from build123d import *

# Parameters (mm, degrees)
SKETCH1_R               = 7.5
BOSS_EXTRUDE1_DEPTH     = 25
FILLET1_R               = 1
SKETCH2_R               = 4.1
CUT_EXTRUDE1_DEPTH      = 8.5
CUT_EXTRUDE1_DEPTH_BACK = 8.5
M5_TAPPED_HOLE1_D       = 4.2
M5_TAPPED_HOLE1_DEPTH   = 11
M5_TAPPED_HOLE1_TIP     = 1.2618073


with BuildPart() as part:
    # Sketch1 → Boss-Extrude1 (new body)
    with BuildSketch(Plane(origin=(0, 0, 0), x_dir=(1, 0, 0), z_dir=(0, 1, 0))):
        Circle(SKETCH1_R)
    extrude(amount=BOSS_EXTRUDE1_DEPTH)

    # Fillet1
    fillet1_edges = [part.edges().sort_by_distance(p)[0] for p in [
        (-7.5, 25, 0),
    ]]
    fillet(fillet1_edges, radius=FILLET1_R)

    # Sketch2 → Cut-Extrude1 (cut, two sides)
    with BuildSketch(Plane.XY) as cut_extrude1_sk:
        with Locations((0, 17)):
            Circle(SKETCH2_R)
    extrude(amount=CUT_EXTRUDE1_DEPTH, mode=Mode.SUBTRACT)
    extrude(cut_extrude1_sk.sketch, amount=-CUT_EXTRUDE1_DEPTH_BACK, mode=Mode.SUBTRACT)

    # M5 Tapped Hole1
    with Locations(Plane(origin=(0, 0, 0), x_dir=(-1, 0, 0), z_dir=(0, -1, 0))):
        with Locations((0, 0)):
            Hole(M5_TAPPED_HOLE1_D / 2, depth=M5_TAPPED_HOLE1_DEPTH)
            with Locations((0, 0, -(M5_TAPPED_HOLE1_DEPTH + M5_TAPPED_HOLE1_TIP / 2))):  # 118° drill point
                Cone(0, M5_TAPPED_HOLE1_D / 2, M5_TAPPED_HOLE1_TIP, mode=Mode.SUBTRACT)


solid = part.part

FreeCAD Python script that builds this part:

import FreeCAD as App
import Part
import Sketcher
from FreeCAD import Vector


def edges_at(feature, points):
    """Names of the edges that pass closest to the given points."""
    edges = feature.Shape.Edges
    near = lambda p: min(range(len(edges)), key=lambda i: edges[i].distToShape(Part.Vertex(*p))[0])
    return sorted({f"Edge{near(p) + 1}" for p in points})

doc = App.newDocument("Part")
body = doc.addObject("PartDesign::Body", "Body")

sketch1 = body.newObject("Sketcher::SketchObject", "Sketch")
sketch1.AttachmentSupport = (doc.getObject("XZ_Plane"), [""])
sketch1.MapMode = "FlatFace"
sketch1.addGeometry(Part.Circle(Vector(0, 0, 0), Vector(0, 0, 1), 7.5), False)
sketch1.addConstraint(Sketcher.Constraint("Coincident", 0, 3, -1, 1))
sketch1.addConstraint(Sketcher.Constraint("Diameter", 0, 15.0))
pad1 = body.newObject("PartDesign::Pad", "Pad")
pad1.Profile = sketch1
pad1.Length = 25
pad1.Reversed = True
doc.recompute()

fillet = body.newObject("PartDesign::Fillet", "Fillet")
fillet.Base = (pad1, edges_at(pad1, [(-7.5, 25, 0)]))
fillet.Radius = 1

sketch2 = body.newObject("Sketcher::SketchObject", "Sketch001")
sketch2.AttachmentSupport = (doc.getObject("XY_Plane"), [""])
sketch2.MapMode = "FlatFace"
sketch2.addGeometry(Part.Circle(Vector(0, 17, 0), Vector(0, 0, 1), 4.1), False)
sketch2.addConstraint(Sketcher.Constraint("PointOnObject", 0, 3, -2))
sketch2.addConstraint(Sketcher.Constraint("Diameter", 0, 8.2))
sketch2.addConstraint(Sketcher.Constraint("DistanceY", -1, 1, 0, 3, 17.0))
pocket1 = body.newObject("PartDesign::Pocket", "Pocket")
pocket1.Profile = sketch2
pocket1.Type = "ThroughAll"
pocket1.Midplane = True

sketch3 = body.newObject("Sketcher::SketchObject", "Sketch002")
sketch3.AttachmentSupport = (doc.getObject("XZ_Plane"), [""])
sketch3.MapMode = "FlatFace"
sketch3.addGeometry(Part.Circle(Vector(0, 0, 0), Vector(0, 0, 1), 2.1), False)
sketch3.addConstraint(Sketcher.Constraint("Coincident", 0, 3, -1, 1))
sketch3.addConstraint(Sketcher.Constraint("Diameter", 0, 4.2))
doc.recompute()
hole = body.newObject("PartDesign::Hole", "Hole")
hole.Profile = sketch3
hole.ThreadType = "None"
hole.Diameter = 4.2
hole.DepthType = "Dimension"
hole.Depth = 11
hole.DrillPoint = "Angled"
hole.DrillPointAngle = 118

doc.recompute()
